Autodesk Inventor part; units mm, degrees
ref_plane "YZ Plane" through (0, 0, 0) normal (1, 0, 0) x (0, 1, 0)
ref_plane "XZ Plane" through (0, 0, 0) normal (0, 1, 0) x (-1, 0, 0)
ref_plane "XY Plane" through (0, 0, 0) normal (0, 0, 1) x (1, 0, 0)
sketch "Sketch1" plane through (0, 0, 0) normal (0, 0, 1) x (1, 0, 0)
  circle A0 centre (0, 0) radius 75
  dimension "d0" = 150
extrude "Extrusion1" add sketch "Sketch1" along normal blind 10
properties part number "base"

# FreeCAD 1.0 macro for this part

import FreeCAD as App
import Part
import Sketcher
Q = App.Units.Quantity

doc = App.newDocument("Part")
body = doc.addObject("PartDesign::Body", "Body")

# Sketch on XY plane
sketch1 = body.newObject("Sketcher::SketchObject", "Sketch")
sketch1.AttachmentSupport = (doc.getObject("XY_Plane"), [""])
sketch1.MapMode = "FlatFace"
sketch1.addGeometry(Part.Circle(App.Vector(0, 0, 0), App.Vector(0, 0, 1), 75), False)
sketch1.addConstraint(Sketcher.Constraint("Coincident", 0, 3, -1, 1))
sketch1.addConstraint(Sketcher.Constraint("Diameter", 0, Q("150 mm")))
pad1 = body.newObject("PartDesign::Pad", "Pad")
pad1.Profile = sketch1
pad1.Length = 10

doc.recompute()
